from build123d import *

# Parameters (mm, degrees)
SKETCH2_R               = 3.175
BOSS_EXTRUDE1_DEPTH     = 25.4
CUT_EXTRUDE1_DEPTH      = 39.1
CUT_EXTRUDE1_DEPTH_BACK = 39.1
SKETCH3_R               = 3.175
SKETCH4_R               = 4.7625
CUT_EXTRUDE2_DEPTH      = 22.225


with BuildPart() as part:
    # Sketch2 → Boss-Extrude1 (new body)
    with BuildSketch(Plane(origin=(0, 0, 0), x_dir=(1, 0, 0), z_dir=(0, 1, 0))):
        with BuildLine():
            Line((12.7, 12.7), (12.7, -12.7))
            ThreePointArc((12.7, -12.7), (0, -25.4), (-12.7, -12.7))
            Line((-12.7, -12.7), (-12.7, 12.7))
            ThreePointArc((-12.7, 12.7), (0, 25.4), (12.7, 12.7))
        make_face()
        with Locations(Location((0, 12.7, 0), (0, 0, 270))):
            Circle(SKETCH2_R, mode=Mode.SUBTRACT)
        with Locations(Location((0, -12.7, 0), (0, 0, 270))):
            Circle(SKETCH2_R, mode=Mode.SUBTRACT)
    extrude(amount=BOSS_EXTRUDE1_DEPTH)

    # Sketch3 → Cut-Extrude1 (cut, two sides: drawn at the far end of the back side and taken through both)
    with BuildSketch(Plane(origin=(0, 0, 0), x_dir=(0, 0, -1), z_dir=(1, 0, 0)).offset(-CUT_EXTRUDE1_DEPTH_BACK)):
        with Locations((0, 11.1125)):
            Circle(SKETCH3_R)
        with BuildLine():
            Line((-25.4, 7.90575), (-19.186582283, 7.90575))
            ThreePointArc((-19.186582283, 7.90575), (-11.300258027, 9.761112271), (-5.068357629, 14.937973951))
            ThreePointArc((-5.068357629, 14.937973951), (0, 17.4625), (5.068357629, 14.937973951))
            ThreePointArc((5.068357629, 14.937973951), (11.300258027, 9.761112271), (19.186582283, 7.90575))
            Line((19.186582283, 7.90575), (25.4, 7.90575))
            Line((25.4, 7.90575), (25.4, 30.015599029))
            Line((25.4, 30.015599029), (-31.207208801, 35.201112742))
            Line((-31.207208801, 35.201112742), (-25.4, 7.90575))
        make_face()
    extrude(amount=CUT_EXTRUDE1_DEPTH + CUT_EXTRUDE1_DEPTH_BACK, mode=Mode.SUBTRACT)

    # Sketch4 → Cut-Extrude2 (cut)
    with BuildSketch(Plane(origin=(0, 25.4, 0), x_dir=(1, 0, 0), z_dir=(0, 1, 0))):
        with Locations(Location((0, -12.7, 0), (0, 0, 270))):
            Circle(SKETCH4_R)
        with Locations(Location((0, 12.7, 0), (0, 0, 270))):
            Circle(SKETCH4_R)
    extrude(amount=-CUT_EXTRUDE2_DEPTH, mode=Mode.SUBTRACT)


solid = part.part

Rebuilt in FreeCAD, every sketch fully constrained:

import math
import FreeCAD as App
import Part
import Sketcher
Q = App.Units.Quantity

doc = App.newDocument("Part")
body = doc.addObject("PartDesign::Body", "Body")

sketch1 = doc.addObject("Sketcher::SketchObject", "Sketch")
body.addObject(sketch1)
sketch1.AttachmentSupport = (doc.XZ_Plane, [""])
sketch1.MapMode = "FlatFace"
sketch1.addGeometry([
    Part.LineSegment(App.Vector(12.7, 12.7, 0), App.Vector(12.7, -12.7, 0)),
    Part.ArcOfCircle(Part.Circle(App.Vector(0, -12.7, 0), App.Vector(0, 0, 1), 12.7), math.radians(180), math.radians(360)),
    Part.LineSegment(App.Vector(-12.7, -12.7, 0), App.Vector(-12.7, 12.7, 0)),
    Part.ArcOfCircle(Part.Circle(App.Vector(0, 12.7, 0), App.Vector(0, 0, 1), 12.7), math.radians(0), math.radians(180)),
    Part.Circle(App.Vector(0, 12.7, 0), App.Vector(0, 0, 1), 3.2),
    Part.Circle(App.Vector(0, -12.7, 0), App.Vector(0, 0, 1), 3.2),
], False)
sketch1.addConstraint([
    Sketcher.Constraint("Tangent", 0, 2, 1, 2),
    Sketcher.Constraint("Tangent", 1, 1, 2, 1),
    Sketcher.Constraint("Tangent", 2, 2, 3, 2),
    Sketcher.Constraint("Tangent", 3, 1, 0, 1),
    Sketcher.Constraint("Vertical", 0),
    Sketcher.Constraint("Vertical", 2),
    Sketcher.Constraint("Coincident", 4, 3, 3, 3),
    Sketcher.Constraint("Coincident", 5, 3, 1, 3),
    Sketcher.Constraint("Equal", 4, 5),
    Sketcher.Constraint("Symmetric", 1, 3, 3, 3, -1, 1),
    Sketcher.Constraint("Radius", 1, Q("0.5 in")),
    Sketcher.Constraint("Diameter", 4, Q("0.25 in")),
    Sketcher.Constraint("DistanceY", 0, 2, 0, 1, Q("1 in")),
])
pad1 = doc.addObject("PartDesign::Pad", "Pad")
body.addObject(pad1)
pad1.Profile = sketch1
pad1.Length = Q("1 in")
pad1.Reversed = True

sketch2 = doc.addObject("Sketcher::SketchObject", "Sketch001")
body.addObject(sketch2)
sketch2.AttachmentSupport = (doc.YZ_Plane, [""])
sketch2.MapMode = "FlatFace"
sketch2.addGeometry([
    Part.Circle(App.Vector(11.1, 0, 0), App.Vector(0, 0, 1), 3.2),
    Part.LineSegment(App.Vector(7.9, 25.4, 0), App.Vector(7.9, 19.2, 0)),
    Part.ArcOfCircle(Part.Circle(App.Vector(25.6, 19.2, 0), App.Vector(0, 0, 1), 17.7), math.radians(180), math.radians(233)),
    Part.ArcOfCircle(Part.Circle(App.Vector(11.1, 0, 0), App.Vector(0, 0, 1), 6.4), math.radians(-53), math.radians(53)),
    Part.ArcOfCircle(Part.Circle(App.Vector(25.6, -19.2, 0), App.Vector(0, 0, 1), 17.7), math.radians(127), math.radians(180)),
    Part.LineSegment(App.Vector(7.9, -19.2, 0), App.Vector(7.9, -25.4, 0)),
    Part.LineSegment(App.Vector(7.9, -25.4, 0), App.Vector(30, -25.4, 0)),
    Part.LineSegment(App.Vector(30, -25.4, 0), App.Vector(35.2, 31.2, 0)),
    Part.LineSegment(App.Vector(35.2, 31.2, 0), App.Vector(7.9, 25.4, 0)),
], False)
sketch2.addConstraint([
    Sketcher.Constraint("Tangent", 1, 2, 2, 1),
    Sketcher.Constraint("Tangent", 2, 2, 3, 2),
    Sketcher.Constraint("Tangent", 3, 1, 4, 1),
    Sketcher.Constraint("Tangent", 4, 2, 5, 1),
    Sketcher.Constraint("Coincident", 5, 2, 6, 1),
    Sketcher.Constraint("Coincident", 6, 2, 7, 1),
    Sketcher.Constraint("Coincident", 7, 2, 8, 1),
    Sketcher.Constraint("Coincident", 8, 2, 1, 1),
    Sketcher.Constraint("Vertical", 1),
    Sketcher.Constraint("Vertical", 5),
    Sketcher.Constraint("Horizontal", 6),
    Sketcher.Constraint("Coincident", 3, 3, 0, 3),
    Sketcher.Constraint("Equal", 2, 4),
    Sketcher.Constraint("Symmetric", 2, 3, 4, 3, -1),
    Sketcher.Constraint("Equal", 1, 5),
    Sketcher.Constraint("Diameter", 0, Q("0.25 in")),
    Sketcher.Constraint("Radius", 3, Q("0.25 in")),
    Sketcher.Constraint("DistanceY", 5, 2, -1, 1, Q("1 in")),
    Sketcher.Constraint("DistanceX", -1, 1, 0, 3, Q("0.4375 in")),
    Sketcher.Constraint("Radius", 2, Q("17.688319 mm")),
    Sketcher.Constraint("DistanceX", 6, 1, 6, 2, Q("22.109849 mm")),
    Sketcher.Constraint("DistanceX", -1, 1, 6, 2, Q("30.015599 mm")),
    Sketcher.Constraint("Distance", 8, Q("27.906281 mm")),
    Sketcher.Constraint("DistanceY", -1, 1, 7, 2, Q("31.207209 mm")),
])
pocket1 = doc.addObject("PartDesign::Pocket", "Pocket")
body.addObject(pocket1)
pocket1.Profile = sketch2
pocket1.Type = "ThroughAll"
pocket1.Midplane = True

sketch3 = doc.addObject("Sketcher::SketchObject", "Sketch002")
body.addObject(sketch3)
sketch3.AttachmentSupport = (doc.XZ_Plane, [""])
sketch3.MapMode = "FlatFace"
sketch3.AttachmentOffset = App.Placement(App.Vector(0, 0, -1 * 25.4), App.Rotation())
sketch3.addGeometry([
    Part.Circle(App.Vector(0, 12.7, 0), App.Vector(0, 0, 1), 4.8),
    Part.Circle(App.Vector(0, -12.7, 0), App.Vector(0, 0, 1), 4.8),
], False)
sketch3.addConstraint([
    Sketcher.Constraint("Equal", 0, 1),
    Sketcher.Constraint("Symmetric", 0, 3, 1, 3, -1, 1),
    Sketcher.Constraint("PointOnObject", 0, 3, -2),
    Sketcher.Constraint("Diameter", 0, Q("0.375 in")),
    Sketcher.Constraint("DistanceY", 1, 3, 0, 3, Q("1 in")),
])
pocket2 = doc.addObject("PartDesign::Pocket", "Pocket001")
body.addObject(pocket2)
pocket2.Profile = sketch3
pocket2.Length = Q("0.875 in")
pocket2.Reversed = True

doc.recompute()
